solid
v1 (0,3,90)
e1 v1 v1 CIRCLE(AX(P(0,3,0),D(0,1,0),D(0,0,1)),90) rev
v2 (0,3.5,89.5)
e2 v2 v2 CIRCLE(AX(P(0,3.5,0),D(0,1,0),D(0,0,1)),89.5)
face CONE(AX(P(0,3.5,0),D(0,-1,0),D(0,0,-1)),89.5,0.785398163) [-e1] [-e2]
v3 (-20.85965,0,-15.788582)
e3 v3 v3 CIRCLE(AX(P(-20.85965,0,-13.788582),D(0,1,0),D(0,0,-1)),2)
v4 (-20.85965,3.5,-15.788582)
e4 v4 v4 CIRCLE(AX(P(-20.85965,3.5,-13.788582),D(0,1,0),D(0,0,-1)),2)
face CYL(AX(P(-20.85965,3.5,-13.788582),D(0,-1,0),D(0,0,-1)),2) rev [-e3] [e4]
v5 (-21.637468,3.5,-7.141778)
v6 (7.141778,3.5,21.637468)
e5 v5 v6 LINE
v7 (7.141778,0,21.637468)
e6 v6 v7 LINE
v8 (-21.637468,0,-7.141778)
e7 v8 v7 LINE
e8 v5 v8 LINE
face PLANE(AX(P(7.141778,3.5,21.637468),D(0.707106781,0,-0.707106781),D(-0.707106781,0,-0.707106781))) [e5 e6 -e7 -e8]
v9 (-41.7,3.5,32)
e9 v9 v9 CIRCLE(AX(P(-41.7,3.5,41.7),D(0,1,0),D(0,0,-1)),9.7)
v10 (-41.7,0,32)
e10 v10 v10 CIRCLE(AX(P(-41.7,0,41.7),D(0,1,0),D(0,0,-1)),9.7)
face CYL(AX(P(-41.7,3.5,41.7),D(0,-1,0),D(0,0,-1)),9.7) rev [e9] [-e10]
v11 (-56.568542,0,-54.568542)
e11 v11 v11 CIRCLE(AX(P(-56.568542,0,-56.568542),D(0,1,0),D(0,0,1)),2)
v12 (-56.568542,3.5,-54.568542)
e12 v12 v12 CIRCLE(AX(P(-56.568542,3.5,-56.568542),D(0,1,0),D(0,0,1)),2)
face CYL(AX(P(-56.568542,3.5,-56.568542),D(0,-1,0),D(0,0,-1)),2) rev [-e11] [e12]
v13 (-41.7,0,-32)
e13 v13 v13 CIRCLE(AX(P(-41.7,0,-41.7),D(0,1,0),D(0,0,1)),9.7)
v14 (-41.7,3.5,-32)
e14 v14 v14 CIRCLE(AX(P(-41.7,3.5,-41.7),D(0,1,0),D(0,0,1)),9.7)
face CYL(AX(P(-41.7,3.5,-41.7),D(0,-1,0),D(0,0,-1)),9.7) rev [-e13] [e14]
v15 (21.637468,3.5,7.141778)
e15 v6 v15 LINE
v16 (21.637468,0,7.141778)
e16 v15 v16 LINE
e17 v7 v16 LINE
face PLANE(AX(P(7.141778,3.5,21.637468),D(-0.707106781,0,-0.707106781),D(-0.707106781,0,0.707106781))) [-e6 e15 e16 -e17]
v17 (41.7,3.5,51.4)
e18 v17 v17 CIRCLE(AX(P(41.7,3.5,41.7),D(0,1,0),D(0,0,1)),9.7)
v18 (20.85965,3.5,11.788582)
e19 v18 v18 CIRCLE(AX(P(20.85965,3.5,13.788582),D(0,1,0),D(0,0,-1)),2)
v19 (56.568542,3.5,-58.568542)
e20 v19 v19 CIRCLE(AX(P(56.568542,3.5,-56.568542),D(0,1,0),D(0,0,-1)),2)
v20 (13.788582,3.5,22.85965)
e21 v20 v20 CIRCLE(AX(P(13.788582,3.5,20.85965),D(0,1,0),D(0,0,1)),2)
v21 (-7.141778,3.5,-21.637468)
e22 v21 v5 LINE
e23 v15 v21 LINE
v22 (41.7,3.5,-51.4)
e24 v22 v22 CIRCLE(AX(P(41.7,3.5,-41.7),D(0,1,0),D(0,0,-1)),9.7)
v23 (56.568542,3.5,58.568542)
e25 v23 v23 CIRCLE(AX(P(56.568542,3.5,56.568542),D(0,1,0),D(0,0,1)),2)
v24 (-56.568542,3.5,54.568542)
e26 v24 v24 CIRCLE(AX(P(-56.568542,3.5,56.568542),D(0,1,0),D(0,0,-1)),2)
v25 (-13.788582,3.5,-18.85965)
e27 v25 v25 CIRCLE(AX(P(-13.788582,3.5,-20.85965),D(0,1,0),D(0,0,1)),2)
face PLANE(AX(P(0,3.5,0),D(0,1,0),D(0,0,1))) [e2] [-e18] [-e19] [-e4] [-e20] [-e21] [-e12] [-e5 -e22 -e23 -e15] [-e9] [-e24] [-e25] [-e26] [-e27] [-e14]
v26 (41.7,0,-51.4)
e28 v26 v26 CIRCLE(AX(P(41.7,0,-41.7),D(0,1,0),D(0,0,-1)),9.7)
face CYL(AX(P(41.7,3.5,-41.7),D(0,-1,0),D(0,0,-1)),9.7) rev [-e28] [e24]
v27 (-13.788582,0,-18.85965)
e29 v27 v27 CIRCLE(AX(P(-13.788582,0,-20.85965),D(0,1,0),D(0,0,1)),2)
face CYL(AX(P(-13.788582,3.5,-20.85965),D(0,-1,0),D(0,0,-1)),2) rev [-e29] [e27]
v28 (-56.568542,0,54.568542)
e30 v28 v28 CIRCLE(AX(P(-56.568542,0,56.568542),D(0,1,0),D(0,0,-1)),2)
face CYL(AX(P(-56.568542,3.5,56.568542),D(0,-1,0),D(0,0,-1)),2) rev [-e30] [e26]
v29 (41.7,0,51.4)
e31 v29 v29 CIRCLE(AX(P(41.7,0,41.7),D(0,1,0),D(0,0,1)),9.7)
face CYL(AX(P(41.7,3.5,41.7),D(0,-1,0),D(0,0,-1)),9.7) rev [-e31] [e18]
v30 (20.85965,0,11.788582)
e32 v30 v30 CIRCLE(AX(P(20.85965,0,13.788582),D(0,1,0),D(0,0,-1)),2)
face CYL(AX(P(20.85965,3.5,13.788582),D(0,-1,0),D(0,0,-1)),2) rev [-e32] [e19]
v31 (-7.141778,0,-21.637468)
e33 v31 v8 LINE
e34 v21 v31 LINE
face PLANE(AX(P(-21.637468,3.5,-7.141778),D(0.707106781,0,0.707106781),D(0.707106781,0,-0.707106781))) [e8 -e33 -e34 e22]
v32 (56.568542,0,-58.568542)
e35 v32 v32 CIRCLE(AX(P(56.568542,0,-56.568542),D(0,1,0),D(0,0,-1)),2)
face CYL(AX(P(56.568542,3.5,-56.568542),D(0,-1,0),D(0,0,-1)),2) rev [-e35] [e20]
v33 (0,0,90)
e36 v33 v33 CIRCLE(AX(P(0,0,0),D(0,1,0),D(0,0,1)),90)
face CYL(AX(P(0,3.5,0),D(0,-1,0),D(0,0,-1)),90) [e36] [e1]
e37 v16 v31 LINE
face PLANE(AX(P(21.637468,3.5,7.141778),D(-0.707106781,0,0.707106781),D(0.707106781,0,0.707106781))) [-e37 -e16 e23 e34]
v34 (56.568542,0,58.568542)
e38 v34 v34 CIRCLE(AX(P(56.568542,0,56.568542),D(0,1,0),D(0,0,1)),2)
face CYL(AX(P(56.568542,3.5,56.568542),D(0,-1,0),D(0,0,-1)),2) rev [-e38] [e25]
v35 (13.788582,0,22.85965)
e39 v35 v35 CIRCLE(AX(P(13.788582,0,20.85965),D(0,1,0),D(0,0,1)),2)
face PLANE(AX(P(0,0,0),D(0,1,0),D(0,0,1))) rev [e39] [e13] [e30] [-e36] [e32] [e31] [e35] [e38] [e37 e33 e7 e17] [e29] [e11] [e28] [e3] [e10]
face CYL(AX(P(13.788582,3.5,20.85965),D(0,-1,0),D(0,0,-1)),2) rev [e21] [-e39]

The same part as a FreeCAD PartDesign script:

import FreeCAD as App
import Part
import Sketcher

V = App.Vector
Q = App.Units.Quantity


def edges_at(feature, points):
    """Names of the edges that pass closest to the given points."""
    edges = feature.Shape.Edges
    near = lambda p: min(range(len(edges)), key=lambda i: edges[i].distToShape(Part.Vertex(*p))[0])
    return sorted({f"Edge{near(p) + 1}" for p in points})

doc = App.newDocument("Part")
params = doc.addObject("Spreadsheet::Sheet", "Params")
for row, (alias, value) in enumerate([
    ("sketch1_diameter", "180 mm"),
    ("sketch1_diameter2", "4 mm"),
    ("sketch1_diameter3", "19.4 mm"),
    ("sketch1_length", "20.5 mm"),
    ("sketch1_length2", "40.7 mm"),
    ("pad1_length", "3.5 mm"),
    ("chamfer_size", "0.5 mm"),
], start=1):
    params.set(f"A{row}", alias)
    params.set(f"B{row}", "=" + value)
    params.setAlias(f"B{row}", alias)

body = doc.addObject("PartDesign::Body", "Body")

sketch1 = body.newObject("Sketcher::SketchObject", "Sketch")
sketch1.AttachmentSupport = (doc.getObject("XZ_Plane"), [""])
sketch1.MapMode = "FlatFace"
sketch1.addGeometry([
    Part.Circle(V(0, 0, 0), V(0, 0, 1), 90),
    Part.Circle(V(-56.568542, 56.568542, 0), V(0, 0, 1), 2),
    Part.Circle(V(-41.7, 41.7, 0), V(0, 0, 1), 9.7),
    Part.Circle(V(56.568542, 56.568542, 0), V(0, 0, 1), 2),
    Part.Circle(V(41.7, 41.7, 0), V(0, 0, 1), 9.7),
    Part.Circle(V(13.788582, 20.85965, 0), V(0, 0, 1), 2),
    Part.Circle(V(20.85965, 13.788582, 0), V(0, 0, 1), 2),
    Part.Circle(V(-20.85965, -13.788582, 0), V(0, 0, 1), 2),
    Part.Circle(V(-13.788582, -20.85965, 0), V(0, 0, 1), 2),
    Part.Circle(V(-41.7, -41.7, 0), V(0, 0, 1), 9.7),
    Part.Circle(V(-56.568542, -56.568542, 0), V(0, 0, 1), 2),
    Part.LineSegment(V(21.637468, 7.141778, 0), V(7.141778, 21.637468, 0)),
    Part.LineSegment(V(7.141778, 21.637468, 0), V(-21.637468, -7.141778, 0)),
    Part.LineSegment(V(-21.637468, -7.141778, 0), V(-7.141778, -21.637468, 0)),
    Part.LineSegment(V(-7.141778, -21.637468, 0), V(21.637468, 7.141778, 0)),
    Part.Circle(V(41.7, -41.7, 0), V(0, 0, 1), 9.7),
    Part.Circle(V(56.568542, -56.568542, 0), V(0, 0, 1), 2),
], False)
sketch1.addConstraint([
    Sketcher.Constraint("Coincident", 11, 2, 12, 1),
    Sketcher.Constraint("Coincident", 12, 2, 13, 1),
    Sketcher.Constraint("Coincident", 13, 2, 14, 1),
    Sketcher.Constraint("Coincident", 14, 2, 11, 1),
    Sketcher.Constraint("Coincident", 0, 3, -1, 1),
    Sketcher.Constraint("Equal", 1, 3),
    Sketcher.Constraint("Equal", 2, 4),
    Sketcher.Constraint("Equal", 3, 5),
    Sketcher.Constraint("Equal", 5, 6),
    Sketcher.Constraint("Equal", 6, 7),
    Sketcher.Constraint("Equal", 7, 8),
    Sketcher.Constraint("Equal", 4, 9),
    Sketcher.Constraint("Equal", 8, 10),
    Sketcher.Constraint("Equal", 9, 15),
    Sketcher.Constraint("Equal", 10, 16),
    Sketcher.Constraint("Symmetric", 6, 3, 7, 3, -1, 1),
    Sketcher.Constraint("Symmetric", 5, 3, 8, 3, -1, 1),
    Sketcher.Constraint("Symmetric", 4, 3, 9, 3, -1, 1),
    Sketcher.Constraint("Symmetric", 3, 3, 10, 3, -1, 1),
    Sketcher.Constraint("Symmetric", 2, 3, 15, 3, -1, 1),
    Sketcher.Constraint("Symmetric", 1, 3, 16, 3, -1, 1),
    Sketcher.Constraint("Symmetric", 11, 2, 13, 2, -1, 1),
    Sketcher.Constraint("Symmetric", 12, 2, 14, 2, -1, 1),
    Sketcher.Constraint("Symmetric", 1, 3, 3, 3, -2),
    Sketcher.Constraint("Symmetric", 2, 3, 4, 3, -2),
    Sketcher.Constraint("Perpendicular", 11, 12),
    Sketcher.Constraint("Diameter", 0, 180.0),
    Sketcher.Constraint("Diameter", 1, 4.0),
    Sketcher.Constraint("Diameter", 2, 19.4),
    Sketcher.Constraint("Angle", 11, Q("135 deg")),
    Sketcher.Constraint("Distance", 11, 20.5),
    Sketcher.Constraint("Distance", 12, 40.7),
    Sketcher.Constraint("DistanceX", 2, 3, -1, 1, 41.7),
    Sketcher.Constraint("DistanceY", -1, 1, 2, 3, 41.7),
    Sketcher.Constraint("DistanceX", 7, 3, 6, 3, 41.7193),
    Sketcher.Constraint("DistanceY", 8, 3, 5, 3, 41.7193),
    Sketcher.Constraint("DistanceX", 5, 3, 3, 3, 42.77996),
    Sketcher.Constraint("DistanceY", 6, 3, 3, 3, 42.77996),
    Sketcher.Constraint("DistanceY", 7, 3, 11, 2, 35.42605),
    Sketcher.Constraint("DistanceX", 1, 3, -1, 1, 56.568542),
])
sketch1.setExpression("Constraints[26]", "Params.sketch1_diameter")
sketch1.setExpression("Constraints[27]", "Params.sketch1_diameter2")
sketch1.setExpression("Constraints[28]", "Params.sketch1_diameter3")
sketch1.setExpression("Constraints[30]", "Params.sketch1_length")
sketch1.setExpression("Constraints[31]", "Params.sketch1_length2")
pad1 = body.newObject("PartDesign::Pad", "Pad")
pad1.Profile = sketch1
pad1.setExpression("Length", "Params.pad1_length")
pad1.Reversed = True
doc.recompute()

chamfer = body.newObject("PartDesign::Chamfer", "Chamfer")
chamfer.Base = (pad1, edges_at(pad1, [(-90, 3.5, 0)]))
chamfer.setExpression("Size", "Params.chamfer_size")

doc.recompute()
